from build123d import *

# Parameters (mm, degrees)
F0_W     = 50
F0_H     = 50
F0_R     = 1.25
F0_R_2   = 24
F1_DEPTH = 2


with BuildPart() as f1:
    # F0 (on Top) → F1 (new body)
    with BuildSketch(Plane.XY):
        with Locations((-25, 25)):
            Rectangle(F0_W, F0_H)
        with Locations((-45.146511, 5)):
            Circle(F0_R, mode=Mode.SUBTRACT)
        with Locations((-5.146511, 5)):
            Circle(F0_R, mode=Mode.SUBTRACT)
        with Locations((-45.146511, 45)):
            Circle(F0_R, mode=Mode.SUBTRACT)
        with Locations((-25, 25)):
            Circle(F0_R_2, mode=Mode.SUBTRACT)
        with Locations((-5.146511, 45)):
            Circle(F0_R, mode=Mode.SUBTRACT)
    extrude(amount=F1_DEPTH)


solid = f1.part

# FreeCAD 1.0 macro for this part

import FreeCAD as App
import Part
import Sketcher


def add_polygon(sketch, points):
    """Adds a closed chain of lines whose ends are joined by coincident constraints."""
    first, n = sketch.GeometryCount, len(points)
    for a, b in zip(points, points[1:] + points[:1]):
        sketch.addGeometry(Part.LineSegment(App.Vector(*a, 0), App.Vector(*b, 0)), False)
    for i in range(n):
        sketch.addConstraint(Sketcher.Constraint("Coincident", first + i, 2, first + (i + 1) % n, 1))

doc = App.newDocument("Part")
body = doc.addObject("PartDesign::Body", "Body")

sketch1 = body.newObject("Sketcher::SketchObject", "Sketch")
sketch1.AttachmentSupport = (doc.getObject("XY_Plane"), [""])
sketch1.MapMode = "FlatFace"
add_polygon(sketch1, [(-50, 50), (-50, 0), (0, 0), (0, 50)])
sketch1.addGeometry(Part.Circle(App.Vector(-45.1, 5, 0), App.Vector(0, 0, 1), 1.2), False)
sketch1.addGeometry(Part.Circle(App.Vector(-5.1, 5, 0), App.Vector(0, 0, 1), 1.2), False)
sketch1.addGeometry(Part.Circle(App.Vector(-45.1, 45, 0), App.Vector(0, 0, 1), 1.2), False)
sketch1.addGeometry(Part.Circle(App.Vector(-25, 25, 0), App.Vector(0, 0, 1), 24), False)
sketch1.addGeometry(Part.Circle(App.Vector(-5.1, 45, 0), App.Vector(0, 0, 1), 1.2), False)
sketch1.addConstraint([
    Sketcher.Constraint("Vertical", 0),
    Sketcher.Constraint("Horizontal", 1),
    Sketcher.Constraint("Vertical", 2),
    Sketcher.Constraint("Horizontal", 3),
    Sketcher.Constraint("Coincident", 1, 2, -1, 1),
    Sketcher.Constraint("Equal", 4, 5),
    Sketcher.Constraint("Equal", 5, 6),
    Sketcher.Constraint("Equal", 6, 8),
    Sketcher.Constraint("Horizontal", 4, 3, 5, 3),
    Sketcher.Constraint("Horizontal", 6, 3, 8, 3),
    Sketcher.Constraint("Vertical", 4, 3, 6, 3),
    Sketcher.Constraint("Vertical", 5, 3, 8, 3),
    Sketcher.Constraint("Equal", 3, 0),
    Sketcher.Constraint("Diameter", 7, 48.0),
    Sketcher.Constraint("Diameter", 4, 2.5),
    Sketcher.Constraint("DistanceX", 1, 1, 1, 2, 50.0),
    Sketcher.Constraint("DistanceY", -1, 1, 4, 3, 5.0),
    Sketcher.Constraint("DistanceY", -1, 1, 6, 3, 45.0),
    Sketcher.Constraint("DistanceX", 7, 3, -1, 1, 25.0),
    Sketcher.Constraint("DistanceY", -1, 1, 7, 3, 25.0),
    Sketcher.Constraint("DistanceX", 4, 3, 5, 3, 40.0),
    Sketcher.Constraint("DistanceX", 4, 3, -1, 1, 45.146511),
])
pad1 = body.newObject("PartDesign::Pad", "Pad")
pad1.Profile = sketch1
pad1.Length = 2

doc.recompute()
